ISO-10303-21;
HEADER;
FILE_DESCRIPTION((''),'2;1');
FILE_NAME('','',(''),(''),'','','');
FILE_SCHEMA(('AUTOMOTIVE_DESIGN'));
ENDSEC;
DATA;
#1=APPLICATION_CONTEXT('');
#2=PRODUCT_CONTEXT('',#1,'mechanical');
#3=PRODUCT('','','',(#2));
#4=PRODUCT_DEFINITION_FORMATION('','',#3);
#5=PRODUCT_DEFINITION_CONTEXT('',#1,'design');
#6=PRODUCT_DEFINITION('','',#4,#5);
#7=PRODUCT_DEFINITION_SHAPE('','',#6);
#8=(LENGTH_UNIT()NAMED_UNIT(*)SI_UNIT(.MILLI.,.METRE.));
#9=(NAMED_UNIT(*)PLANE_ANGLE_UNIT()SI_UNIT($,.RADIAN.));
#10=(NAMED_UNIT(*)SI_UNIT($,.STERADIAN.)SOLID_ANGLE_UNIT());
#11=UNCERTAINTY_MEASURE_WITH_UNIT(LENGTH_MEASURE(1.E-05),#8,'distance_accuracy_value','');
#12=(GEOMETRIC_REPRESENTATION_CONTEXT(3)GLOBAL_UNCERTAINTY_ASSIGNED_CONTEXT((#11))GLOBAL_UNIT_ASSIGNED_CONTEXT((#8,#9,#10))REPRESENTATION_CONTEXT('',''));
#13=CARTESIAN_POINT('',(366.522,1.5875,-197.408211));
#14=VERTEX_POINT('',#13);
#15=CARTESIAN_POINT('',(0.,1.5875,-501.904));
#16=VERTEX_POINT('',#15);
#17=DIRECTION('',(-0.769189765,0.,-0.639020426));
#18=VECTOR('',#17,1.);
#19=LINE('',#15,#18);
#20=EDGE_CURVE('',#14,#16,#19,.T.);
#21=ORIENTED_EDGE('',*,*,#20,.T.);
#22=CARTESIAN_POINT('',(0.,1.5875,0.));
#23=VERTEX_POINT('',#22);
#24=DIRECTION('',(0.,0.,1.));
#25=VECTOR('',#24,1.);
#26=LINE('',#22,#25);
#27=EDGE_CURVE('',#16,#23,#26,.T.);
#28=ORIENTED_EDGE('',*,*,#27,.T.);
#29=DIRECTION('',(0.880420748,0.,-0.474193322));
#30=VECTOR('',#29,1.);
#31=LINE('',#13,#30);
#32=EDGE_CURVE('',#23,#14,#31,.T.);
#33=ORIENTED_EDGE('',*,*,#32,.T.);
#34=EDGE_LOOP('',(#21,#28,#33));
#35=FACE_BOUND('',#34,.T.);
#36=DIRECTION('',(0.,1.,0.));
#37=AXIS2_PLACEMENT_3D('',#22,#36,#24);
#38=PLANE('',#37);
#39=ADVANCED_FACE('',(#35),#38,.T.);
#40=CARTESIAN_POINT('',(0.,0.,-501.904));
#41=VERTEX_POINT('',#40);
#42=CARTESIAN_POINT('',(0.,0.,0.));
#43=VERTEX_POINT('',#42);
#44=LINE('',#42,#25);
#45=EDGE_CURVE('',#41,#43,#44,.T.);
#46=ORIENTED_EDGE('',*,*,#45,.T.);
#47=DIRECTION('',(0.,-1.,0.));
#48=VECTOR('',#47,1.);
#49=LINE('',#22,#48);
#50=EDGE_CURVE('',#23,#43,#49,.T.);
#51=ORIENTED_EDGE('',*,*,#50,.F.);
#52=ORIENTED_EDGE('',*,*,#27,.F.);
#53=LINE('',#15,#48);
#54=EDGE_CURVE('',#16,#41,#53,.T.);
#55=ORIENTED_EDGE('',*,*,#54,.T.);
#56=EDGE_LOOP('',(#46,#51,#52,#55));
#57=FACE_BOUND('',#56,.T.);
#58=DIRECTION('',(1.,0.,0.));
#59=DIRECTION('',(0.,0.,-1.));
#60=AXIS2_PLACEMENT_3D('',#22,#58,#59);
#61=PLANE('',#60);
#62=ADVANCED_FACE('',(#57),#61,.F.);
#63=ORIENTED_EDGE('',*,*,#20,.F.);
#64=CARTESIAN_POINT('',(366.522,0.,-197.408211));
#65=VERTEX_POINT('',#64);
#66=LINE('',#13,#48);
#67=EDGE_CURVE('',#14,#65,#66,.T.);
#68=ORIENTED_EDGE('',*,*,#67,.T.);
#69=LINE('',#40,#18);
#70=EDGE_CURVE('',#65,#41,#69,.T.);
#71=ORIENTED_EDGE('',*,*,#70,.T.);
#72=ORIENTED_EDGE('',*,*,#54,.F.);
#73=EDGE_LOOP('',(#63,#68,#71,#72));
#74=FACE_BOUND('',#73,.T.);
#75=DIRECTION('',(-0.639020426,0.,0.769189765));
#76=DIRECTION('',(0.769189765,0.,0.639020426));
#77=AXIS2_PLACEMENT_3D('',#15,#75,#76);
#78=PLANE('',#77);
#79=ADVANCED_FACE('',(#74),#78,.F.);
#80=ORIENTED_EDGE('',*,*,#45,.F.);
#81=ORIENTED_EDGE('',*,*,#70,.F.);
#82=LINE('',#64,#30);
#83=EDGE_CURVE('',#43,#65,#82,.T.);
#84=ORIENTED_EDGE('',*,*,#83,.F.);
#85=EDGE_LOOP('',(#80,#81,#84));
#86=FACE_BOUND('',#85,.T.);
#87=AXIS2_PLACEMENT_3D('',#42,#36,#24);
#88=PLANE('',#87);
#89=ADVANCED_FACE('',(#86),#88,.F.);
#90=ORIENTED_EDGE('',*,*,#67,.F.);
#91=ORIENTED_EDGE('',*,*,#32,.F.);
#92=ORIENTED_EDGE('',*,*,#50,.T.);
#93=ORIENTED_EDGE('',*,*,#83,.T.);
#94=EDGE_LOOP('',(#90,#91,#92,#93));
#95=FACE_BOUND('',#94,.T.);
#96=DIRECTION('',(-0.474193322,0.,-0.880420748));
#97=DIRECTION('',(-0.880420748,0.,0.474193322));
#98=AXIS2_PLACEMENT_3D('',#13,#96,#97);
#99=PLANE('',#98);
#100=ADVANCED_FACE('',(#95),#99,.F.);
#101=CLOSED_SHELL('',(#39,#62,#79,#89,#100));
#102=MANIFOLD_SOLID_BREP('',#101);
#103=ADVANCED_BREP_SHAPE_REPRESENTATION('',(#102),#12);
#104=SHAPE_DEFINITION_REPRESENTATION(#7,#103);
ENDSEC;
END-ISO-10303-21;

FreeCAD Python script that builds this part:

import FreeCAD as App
import Part
import Sketcher

V = App.Vector
Q = App.Units.Quantity

doc = App.newDocument("Part")
params = doc.addObject("Spreadsheet::Sheet", "Params")
for row, (alias, value) in enumerate([
    ("sketch1_height", "19.76 in"),
    ("sketch1_length", "18.76 in"),
    ("pad1_length", "0.0625 in"),
], start=1):
    params.set(f"A{row}", alias)
    params.set(f"B{row}", "=" + value)
    params.setAlias(f"B{row}", alias)

body = doc.addObject("PartDesign::Body", "Body")

# Sketch on XZ plane
sketch1 = doc.addObject("Sketcher::SketchObject", "Sketch")
body.addObject(sketch1)
sketch1.AttachmentSupport = (doc.XZ_Plane, [""])
sketch1.MapMode = "FlatFace"
sketch1.addGeometry([
    Part.LineSegment(V(0, -501.904, 0), V(0, 0, 0)),
    Part.LineSegment(V(0, 0, 0), V(366.522, -197.408211, 0)),
    Part.LineSegment(V(366.522, -197.408211, 0), V(0, -501.904, 0)),
], False)
sketch1.addConstraint([
    Sketcher.Constraint("Coincident", 0, 2, 1, 1),
    Sketcher.Constraint("Coincident", 1, 2, 2, 1),
    Sketcher.Constraint("Coincident", 2, 2, 0, 1),
    Sketcher.Constraint("Vertical", 0),
    Sketcher.Constraint("Coincident", 0, 2, -1, 1),
    Sketcher.Constraint("DistanceY", 0, 1, 0, 2, Q("19.76 in")),
    Sketcher.Constraint("Distance", 2, Q("18.76 in")),
    Sketcher.Constraint("DistanceX", -1, 1, 1, 2, Q("14.43 in")),
])
sketch1.setExpression("Constraints[5]", "Params.sketch1_height")
sketch1.setExpression("Constraints[6]", "Params.sketch1_length")
pad1 = doc.addObject("PartDesign::Pad", "Pad")
body.addObject(pad1)
pad1.Profile = sketch1
pad1.setExpression("Length", "Params.pad1_length")
pad1.Reversed = True

doc.recompute()
